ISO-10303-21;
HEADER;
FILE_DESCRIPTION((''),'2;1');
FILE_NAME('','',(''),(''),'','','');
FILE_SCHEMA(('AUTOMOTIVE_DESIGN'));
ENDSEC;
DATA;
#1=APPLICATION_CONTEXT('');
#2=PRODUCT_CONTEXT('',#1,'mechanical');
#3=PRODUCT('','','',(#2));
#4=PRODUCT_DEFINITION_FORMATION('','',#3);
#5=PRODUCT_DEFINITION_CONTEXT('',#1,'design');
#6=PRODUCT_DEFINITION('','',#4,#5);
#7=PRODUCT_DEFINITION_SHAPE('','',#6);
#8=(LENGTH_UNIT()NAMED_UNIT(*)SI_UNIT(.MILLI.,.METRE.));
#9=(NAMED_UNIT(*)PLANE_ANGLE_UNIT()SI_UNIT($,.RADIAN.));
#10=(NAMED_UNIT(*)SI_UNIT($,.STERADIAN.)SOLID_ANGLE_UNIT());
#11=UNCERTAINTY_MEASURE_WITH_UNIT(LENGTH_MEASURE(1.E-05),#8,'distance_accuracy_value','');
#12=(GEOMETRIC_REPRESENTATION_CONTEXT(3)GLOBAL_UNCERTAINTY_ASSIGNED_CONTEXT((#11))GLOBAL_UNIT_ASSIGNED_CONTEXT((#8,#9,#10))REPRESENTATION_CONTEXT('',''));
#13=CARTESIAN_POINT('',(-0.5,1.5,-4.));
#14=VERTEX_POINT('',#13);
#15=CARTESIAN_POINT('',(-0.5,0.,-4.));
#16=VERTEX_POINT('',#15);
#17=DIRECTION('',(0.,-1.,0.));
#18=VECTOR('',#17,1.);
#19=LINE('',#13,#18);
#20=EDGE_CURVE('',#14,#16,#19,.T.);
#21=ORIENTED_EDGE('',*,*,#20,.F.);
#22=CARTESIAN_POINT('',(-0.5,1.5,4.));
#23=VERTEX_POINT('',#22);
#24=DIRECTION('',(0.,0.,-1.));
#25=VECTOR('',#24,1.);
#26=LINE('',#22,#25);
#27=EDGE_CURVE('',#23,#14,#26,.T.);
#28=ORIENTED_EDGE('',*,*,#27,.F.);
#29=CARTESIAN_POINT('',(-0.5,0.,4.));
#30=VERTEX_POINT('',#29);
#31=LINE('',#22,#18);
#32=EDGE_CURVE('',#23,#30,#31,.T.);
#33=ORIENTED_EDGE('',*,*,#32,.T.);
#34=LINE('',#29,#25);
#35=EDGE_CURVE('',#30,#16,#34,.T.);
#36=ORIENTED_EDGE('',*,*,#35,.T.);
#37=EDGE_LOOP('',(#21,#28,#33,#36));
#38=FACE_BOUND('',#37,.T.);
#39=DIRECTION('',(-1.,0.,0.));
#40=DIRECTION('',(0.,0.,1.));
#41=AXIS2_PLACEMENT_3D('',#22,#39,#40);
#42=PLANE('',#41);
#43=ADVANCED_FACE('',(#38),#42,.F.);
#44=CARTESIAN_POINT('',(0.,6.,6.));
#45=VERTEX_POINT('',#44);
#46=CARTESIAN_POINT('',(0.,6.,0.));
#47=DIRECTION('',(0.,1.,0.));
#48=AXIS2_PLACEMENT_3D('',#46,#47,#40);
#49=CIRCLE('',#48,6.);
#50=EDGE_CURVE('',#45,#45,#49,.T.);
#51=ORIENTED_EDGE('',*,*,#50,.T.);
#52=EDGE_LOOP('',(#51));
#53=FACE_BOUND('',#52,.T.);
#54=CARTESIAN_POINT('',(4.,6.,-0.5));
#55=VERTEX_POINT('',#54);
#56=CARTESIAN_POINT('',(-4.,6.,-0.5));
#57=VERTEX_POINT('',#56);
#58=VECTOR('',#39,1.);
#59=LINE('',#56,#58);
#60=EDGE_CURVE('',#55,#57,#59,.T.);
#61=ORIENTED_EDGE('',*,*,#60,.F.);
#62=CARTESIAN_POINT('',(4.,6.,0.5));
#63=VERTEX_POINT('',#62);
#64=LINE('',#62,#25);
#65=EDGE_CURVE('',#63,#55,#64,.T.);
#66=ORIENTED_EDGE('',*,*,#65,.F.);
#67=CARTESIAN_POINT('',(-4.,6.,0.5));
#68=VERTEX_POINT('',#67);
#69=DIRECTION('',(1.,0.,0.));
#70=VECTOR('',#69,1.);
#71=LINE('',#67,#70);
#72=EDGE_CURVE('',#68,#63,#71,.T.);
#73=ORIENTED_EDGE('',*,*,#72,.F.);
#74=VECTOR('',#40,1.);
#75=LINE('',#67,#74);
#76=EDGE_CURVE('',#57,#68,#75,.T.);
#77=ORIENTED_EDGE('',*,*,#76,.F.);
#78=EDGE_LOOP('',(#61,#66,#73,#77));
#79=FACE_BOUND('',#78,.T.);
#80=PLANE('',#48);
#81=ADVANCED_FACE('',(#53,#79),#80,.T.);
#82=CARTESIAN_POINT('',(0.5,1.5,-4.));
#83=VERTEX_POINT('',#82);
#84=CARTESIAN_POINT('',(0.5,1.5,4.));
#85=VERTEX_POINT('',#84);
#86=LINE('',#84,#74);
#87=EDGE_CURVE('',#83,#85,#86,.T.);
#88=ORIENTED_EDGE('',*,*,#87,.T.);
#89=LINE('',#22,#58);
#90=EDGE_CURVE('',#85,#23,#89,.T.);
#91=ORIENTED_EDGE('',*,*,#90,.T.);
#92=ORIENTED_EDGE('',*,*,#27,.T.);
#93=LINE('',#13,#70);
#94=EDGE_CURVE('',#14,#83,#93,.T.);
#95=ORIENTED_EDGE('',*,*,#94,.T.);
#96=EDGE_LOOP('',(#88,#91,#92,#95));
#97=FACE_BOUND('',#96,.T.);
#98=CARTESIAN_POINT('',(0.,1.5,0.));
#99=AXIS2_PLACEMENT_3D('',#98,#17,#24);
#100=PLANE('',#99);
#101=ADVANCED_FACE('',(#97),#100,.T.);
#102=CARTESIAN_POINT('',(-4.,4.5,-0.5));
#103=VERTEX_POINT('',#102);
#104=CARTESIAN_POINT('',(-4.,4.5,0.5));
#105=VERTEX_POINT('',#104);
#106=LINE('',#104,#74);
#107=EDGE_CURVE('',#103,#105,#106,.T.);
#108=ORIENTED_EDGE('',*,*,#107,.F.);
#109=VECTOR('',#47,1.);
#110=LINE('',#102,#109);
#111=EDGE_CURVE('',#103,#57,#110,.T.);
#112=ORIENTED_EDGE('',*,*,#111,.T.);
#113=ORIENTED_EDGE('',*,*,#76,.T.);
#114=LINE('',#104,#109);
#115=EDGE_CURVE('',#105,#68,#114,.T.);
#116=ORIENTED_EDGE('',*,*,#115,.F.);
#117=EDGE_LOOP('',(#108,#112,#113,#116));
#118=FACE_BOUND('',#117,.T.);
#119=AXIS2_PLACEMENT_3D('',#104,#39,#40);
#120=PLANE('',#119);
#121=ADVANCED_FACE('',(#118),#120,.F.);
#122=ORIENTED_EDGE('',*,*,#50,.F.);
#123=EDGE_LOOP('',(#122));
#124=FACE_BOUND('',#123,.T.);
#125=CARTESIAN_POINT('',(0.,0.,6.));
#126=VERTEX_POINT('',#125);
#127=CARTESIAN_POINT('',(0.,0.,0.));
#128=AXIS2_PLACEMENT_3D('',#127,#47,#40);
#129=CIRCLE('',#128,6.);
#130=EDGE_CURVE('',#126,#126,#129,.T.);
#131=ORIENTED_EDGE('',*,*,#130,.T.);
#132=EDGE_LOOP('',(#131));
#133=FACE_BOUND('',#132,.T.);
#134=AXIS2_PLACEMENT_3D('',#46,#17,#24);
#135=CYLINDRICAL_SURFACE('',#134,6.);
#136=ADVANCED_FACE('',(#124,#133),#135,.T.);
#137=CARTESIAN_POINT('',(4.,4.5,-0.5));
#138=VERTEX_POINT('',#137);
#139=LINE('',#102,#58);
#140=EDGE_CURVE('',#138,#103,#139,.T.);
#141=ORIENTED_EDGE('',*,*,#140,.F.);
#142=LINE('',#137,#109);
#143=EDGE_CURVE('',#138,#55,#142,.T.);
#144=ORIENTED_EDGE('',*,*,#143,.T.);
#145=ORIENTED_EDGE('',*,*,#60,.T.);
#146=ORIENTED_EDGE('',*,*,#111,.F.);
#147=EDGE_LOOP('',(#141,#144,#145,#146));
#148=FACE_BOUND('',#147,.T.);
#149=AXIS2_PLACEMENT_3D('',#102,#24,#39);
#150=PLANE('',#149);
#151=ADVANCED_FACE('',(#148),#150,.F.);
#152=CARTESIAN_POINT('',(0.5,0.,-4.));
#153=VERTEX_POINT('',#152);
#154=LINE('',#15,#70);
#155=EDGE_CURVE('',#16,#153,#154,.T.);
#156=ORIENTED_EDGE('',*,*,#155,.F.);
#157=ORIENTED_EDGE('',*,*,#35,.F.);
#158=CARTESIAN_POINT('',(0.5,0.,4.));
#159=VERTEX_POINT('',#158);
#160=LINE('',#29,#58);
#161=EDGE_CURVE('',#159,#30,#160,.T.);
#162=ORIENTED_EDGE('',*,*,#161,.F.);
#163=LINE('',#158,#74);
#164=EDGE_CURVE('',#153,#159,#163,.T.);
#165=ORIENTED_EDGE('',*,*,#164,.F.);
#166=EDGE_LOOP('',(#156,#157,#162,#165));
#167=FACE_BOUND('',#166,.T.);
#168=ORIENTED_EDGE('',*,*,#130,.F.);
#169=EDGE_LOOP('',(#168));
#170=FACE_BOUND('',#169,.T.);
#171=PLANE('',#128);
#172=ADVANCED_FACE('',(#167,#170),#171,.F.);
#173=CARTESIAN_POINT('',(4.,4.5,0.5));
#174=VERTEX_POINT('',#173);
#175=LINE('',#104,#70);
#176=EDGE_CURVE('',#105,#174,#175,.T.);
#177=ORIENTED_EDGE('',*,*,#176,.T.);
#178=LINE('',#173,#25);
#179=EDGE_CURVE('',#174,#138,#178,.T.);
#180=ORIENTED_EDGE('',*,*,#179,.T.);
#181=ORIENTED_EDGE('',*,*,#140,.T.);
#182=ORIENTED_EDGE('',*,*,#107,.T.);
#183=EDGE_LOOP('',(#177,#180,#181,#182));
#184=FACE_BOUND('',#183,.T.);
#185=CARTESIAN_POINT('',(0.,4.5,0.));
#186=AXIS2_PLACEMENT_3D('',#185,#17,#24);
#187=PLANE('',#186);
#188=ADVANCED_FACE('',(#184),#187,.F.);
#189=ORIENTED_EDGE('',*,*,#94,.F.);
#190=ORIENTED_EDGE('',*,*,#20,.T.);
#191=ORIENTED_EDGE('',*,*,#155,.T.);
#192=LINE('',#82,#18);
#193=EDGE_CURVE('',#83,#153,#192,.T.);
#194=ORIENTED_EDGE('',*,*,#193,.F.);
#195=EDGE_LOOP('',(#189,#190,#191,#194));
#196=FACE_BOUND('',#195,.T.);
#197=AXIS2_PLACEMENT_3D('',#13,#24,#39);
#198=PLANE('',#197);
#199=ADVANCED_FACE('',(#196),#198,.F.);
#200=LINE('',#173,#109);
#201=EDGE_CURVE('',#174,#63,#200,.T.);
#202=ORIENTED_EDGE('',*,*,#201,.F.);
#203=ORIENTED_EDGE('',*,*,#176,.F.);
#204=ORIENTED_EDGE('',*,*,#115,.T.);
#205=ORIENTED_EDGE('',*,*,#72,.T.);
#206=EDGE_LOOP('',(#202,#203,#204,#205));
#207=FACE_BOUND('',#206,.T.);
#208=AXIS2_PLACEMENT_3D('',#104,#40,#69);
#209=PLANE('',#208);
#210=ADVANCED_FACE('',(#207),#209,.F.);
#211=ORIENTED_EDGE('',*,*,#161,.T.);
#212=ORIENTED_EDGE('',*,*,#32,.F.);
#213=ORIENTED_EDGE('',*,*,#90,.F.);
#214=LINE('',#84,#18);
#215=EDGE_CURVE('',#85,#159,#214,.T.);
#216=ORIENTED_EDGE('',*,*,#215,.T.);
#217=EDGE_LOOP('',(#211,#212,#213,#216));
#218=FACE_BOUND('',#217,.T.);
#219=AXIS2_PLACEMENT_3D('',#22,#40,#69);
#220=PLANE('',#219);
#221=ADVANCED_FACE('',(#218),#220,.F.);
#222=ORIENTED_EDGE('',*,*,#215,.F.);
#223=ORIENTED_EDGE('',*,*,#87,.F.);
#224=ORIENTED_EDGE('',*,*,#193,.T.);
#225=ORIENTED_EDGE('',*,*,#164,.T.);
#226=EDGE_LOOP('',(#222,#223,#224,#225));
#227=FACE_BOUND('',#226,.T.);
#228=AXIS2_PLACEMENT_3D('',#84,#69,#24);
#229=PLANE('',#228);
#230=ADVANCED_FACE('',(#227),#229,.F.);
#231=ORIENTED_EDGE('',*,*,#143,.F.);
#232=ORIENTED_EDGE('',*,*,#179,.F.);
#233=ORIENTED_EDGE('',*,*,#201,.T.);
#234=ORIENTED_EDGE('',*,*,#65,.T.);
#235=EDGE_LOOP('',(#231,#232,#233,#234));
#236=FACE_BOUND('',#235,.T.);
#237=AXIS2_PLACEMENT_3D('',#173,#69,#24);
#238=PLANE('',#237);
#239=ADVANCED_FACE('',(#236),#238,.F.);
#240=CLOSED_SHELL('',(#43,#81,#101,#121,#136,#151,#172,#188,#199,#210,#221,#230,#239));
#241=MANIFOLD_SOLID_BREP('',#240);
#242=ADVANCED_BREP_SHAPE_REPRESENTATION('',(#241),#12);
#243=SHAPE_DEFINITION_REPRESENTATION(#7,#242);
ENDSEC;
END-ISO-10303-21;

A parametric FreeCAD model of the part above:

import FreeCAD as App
import Part
import Sketcher

V = App.Vector
Q = App.Units.Quantity


def add_polygon(sketch, points):
    """Adds a closed chain of lines whose ends are joined by coincident constraints."""
    first, n = sketch.GeometryCount, len(points)
    for a, b in zip(points, points[1:] + points[:1]):
        sketch.addGeometry(Part.LineSegment(App.Vector(*a, 0), App.Vector(*b, 0)), False)
    for i in range(n):
        sketch.addConstraint(Sketcher.Constraint("Coincident", first + i, 2, first + (i + 1) % n, 1))

doc = App.newDocument("Part")
body = doc.addObject("PartDesign::Body", "Body")

# Sketch on XZ plane
sketch1 = body.newObject("Sketcher::SketchObject", "Sketch")
sketch1.AttachmentSupport = (doc.getObject("XZ_Plane"), [""])
sketch1.MapMode = "FlatFace"
sketch1.addGeometry(Part.Circle(V(0, 0, 0), V(0, 0, 1), 6), False)
sketch1.addConstraint(Sketcher.Constraint("Coincident", 0, 3, -1, 1))
sketch1.addConstraint(Sketcher.Constraint("Diameter", 0, Q("12 mm")))
pad1 = body.newObject("PartDesign::Pad", "Pad")
pad1.Profile = sketch1
pad1.Length = 6
pad1.Reversed = True

# Sketch on XZ plane
sketch2 = body.newObject("Sketcher::SketchObject", "Sketch001")
sketch2.AttachmentSupport = (doc.getObject("XZ_Plane"), [""])
sketch2.MapMode = "FlatFace"
sketch2.AttachmentOffset = App.Placement(V(0, 0, -6), App.Rotation())
add_polygon(sketch2, [(-4, -0.5), (-4, 0.5), (4, 0.5), (4, -0.5)])  # lines 0-3
sketch2.addConstraint(Sketcher.Constraint("Vertical", 0))
sketch2.addConstraint(Sketcher.Constraint("Horizontal", 1))
sketch2.addConstraint(Sketcher.Constraint("Vertical", 2))
sketch2.addConstraint(Sketcher.Constraint("Horizontal", 3))
sketch2.addConstraint(Sketcher.Constraint("Symmetric", 0, 2, 2, 2, -1, 1))
sketch2.addConstraint(Sketcher.Constraint("DistanceX", 1, 1, 1, 2, Q("8 mm")))
sketch2.addConstraint(Sketcher.Constraint("DistanceY", 0, 1, 0, 2, Q("1 mm")))
pocket1 = body.newObject("PartDesign::Pocket", "Pocket")
pocket1.Profile = sketch2
pocket1.Length = 1.5
pocket1.Reversed = True

# Sketch on XZ plane
sketch3 = body.newObject("Sketcher::SketchObject", "Sketch002")
sketch3.AttachmentSupport = (doc.getObject("XZ_Plane"), [""])
sketch3.MapMode = "FlatFace"
add_polygon(sketch3, [(-0.5, 4), (-0.5, -4), (0.5, -4), (0.5, 4)])  # lines 0-3
sketch3.addConstraint(Sketcher.Constraint("Vertical", 0))
sketch3.addConstraint(Sketcher.Constraint("Horizontal", 1))
sketch3.addConstraint(Sketcher.Constraint("Vertical", 2))
sketch3.addConstraint(Sketcher.Constraint("Horizontal", 3))
sketch3.addConstraint(Sketcher.Constraint("Symmetric", 0, 2, 2, 2, -1, 1))
sketch3.addConstraint(Sketcher.Constraint("DistanceX", 1, 1, 1, 2, Q("1 mm")))
sketch3.addConstraint(Sketcher.Constraint("DistanceY", 0, 2, 0, 1, Q("8 mm")))
pocket2 = body.newObject("PartDesign::Pocket", "Pocket001")
pocket2.Profile = sketch3
pocket2.Length = 1.5

doc.recompute()
